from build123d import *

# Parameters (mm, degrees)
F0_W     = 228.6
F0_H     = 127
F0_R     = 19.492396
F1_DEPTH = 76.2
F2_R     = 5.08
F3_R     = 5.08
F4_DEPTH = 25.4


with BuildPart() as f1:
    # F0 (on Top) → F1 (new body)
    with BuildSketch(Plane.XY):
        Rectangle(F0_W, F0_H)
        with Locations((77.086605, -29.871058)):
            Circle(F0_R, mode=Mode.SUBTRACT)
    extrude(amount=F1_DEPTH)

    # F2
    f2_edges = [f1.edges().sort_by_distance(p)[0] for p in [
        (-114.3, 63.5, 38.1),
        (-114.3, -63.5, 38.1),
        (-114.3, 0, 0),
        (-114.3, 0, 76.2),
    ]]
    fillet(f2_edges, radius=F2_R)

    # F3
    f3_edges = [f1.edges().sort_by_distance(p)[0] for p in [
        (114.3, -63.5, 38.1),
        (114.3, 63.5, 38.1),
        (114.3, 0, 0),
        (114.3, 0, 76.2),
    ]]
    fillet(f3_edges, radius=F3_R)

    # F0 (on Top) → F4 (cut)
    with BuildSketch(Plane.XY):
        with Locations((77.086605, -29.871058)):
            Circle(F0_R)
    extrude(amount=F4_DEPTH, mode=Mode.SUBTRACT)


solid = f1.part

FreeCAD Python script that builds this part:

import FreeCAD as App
import Part
import Sketcher
from FreeCAD import Vector
Q = App.Units.Quantity


def edges_at(feature, points):
    """Names of the edges that pass closest to the given points."""
    edges = feature.Shape.Edges
    near = lambda p: min(range(len(edges)), key=lambda i: edges[i].distToShape(Part.Vertex(*p))[0])
    return sorted({f"Edge{near(p) + 1}" for p in points})


def add_polygon(sketch, points):
    """Adds a closed chain of lines whose ends are joined by coincident constraints."""
    first, n = sketch.GeometryCount, len(points)
    for a, b in zip(points, points[1:] + points[:1]):
        sketch.addGeometry(Part.LineSegment(App.Vector(*a, 0), App.Vector(*b, 0)), False)
    for i in range(n):
        sketch.addConstraint(Sketcher.Constraint("Coincident", first + i, 2, first + (i + 1) % n, 1))

doc = App.newDocument("Part")
body = doc.addObject("PartDesign::Body", "Body")

# Sketch on XY plane
sketch1 = body.newObject("Sketcher::SketchObject", "Sketch")
sketch1.AttachmentSupport = (doc.getObject("XY_Plane"), [""])
sketch1.MapMode = "FlatFace"
add_polygon(sketch1, [(-114, 64), (-114, -64), (114, -64), (114, 64)])  # lines 0-3
sketch1.addGeometry(Part.Circle(Vector(77, -30, 0), Vector(0, 0, 1), 19), False)  # 4
sketch1.addConstraint(Sketcher.Constraint("Vertical", 0))
sketch1.addConstraint(Sketcher.Constraint("Horizontal", 1))
sketch1.addConstraint(Sketcher.Constraint("Vertical", 2))
sketch1.addConstraint(Sketcher.Constraint("Horizontal", 3))
sketch1.addConstraint(Sketcher.Constraint("Symmetric", 0, 2, 2, 2, -1, 1))
sketch1.addConstraint(Sketcher.Constraint("DistanceX", 1, 1, 1, 2, Q("9 in")))
sketch1.addConstraint(Sketcher.Constraint("DistanceY", 0, 2, 0, 1, Q("5 in")))
sketch1.addConstraint(Sketcher.Constraint("Diameter", 4, 38.984792))
sketch1.addConstraint(Sketcher.Constraint("DistanceY", 4, 3, -1, 1, 29.871058))
sketch1.addConstraint(Sketcher.Constraint("DistanceX", -1, 1, 4, 3, 77.086605))
pad1 = body.newObject("PartDesign::Pad", "Pad")
pad1.Profile = sketch1
pad1.Length = Q("3 in")
doc.recompute()

fillet = body.newObject("PartDesign::Fillet", "Fillet")
fillet.Base = (pad1, edges_at(pad1, [
    (-114.3, 63.5, 38.1),
    (-114.3, -63.5, 38.1),
    (-114.3, 0, 0),
    (-114.3, 0, 76.2),
]))
fillet.Radius = Q("0.2 in")
doc.recompute()

fillet2 = body.newObject("PartDesign::Fillet", "Fillet001")
fillet2.Base = (fillet, edges_at(fillet, [
    (114.3, -63.5, 38.1),
    (114.3, 63.5, 38.1),
    (114.3, 0, 0),
    (114.3, 0, 76.2),
]))
fillet2.Radius = Q("0.2 in")

# Sketch on XY plane
sketch2 = body.newObject("Sketcher::SketchObject", "Sketch001")
sketch2.AttachmentSupport = (doc.getObject("XY_Plane"), [""])
sketch2.MapMode = "FlatFace"
sketch2.addGeometry(Part.Circle(Vector(77, -30, 0), Vector(0, 0, 1), 19), False)
sketch2.addConstraint(Sketcher.Constraint("Diameter", 0, 38.984792))
sketch2.addConstraint(Sketcher.Constraint("DistanceY", 0, 3, -1, 1, 29.871058))
sketch2.addConstraint(Sketcher.Constraint("DistanceX", -1, 1, 0, 3, 77.086605))
pocket1 = body.newObject("PartDesign::Pocket", "Pocket")
pocket1.Profile = sketch2
pocket1.Length = Q("1 in")
pocket1.Reversed = True

doc.recompute()
